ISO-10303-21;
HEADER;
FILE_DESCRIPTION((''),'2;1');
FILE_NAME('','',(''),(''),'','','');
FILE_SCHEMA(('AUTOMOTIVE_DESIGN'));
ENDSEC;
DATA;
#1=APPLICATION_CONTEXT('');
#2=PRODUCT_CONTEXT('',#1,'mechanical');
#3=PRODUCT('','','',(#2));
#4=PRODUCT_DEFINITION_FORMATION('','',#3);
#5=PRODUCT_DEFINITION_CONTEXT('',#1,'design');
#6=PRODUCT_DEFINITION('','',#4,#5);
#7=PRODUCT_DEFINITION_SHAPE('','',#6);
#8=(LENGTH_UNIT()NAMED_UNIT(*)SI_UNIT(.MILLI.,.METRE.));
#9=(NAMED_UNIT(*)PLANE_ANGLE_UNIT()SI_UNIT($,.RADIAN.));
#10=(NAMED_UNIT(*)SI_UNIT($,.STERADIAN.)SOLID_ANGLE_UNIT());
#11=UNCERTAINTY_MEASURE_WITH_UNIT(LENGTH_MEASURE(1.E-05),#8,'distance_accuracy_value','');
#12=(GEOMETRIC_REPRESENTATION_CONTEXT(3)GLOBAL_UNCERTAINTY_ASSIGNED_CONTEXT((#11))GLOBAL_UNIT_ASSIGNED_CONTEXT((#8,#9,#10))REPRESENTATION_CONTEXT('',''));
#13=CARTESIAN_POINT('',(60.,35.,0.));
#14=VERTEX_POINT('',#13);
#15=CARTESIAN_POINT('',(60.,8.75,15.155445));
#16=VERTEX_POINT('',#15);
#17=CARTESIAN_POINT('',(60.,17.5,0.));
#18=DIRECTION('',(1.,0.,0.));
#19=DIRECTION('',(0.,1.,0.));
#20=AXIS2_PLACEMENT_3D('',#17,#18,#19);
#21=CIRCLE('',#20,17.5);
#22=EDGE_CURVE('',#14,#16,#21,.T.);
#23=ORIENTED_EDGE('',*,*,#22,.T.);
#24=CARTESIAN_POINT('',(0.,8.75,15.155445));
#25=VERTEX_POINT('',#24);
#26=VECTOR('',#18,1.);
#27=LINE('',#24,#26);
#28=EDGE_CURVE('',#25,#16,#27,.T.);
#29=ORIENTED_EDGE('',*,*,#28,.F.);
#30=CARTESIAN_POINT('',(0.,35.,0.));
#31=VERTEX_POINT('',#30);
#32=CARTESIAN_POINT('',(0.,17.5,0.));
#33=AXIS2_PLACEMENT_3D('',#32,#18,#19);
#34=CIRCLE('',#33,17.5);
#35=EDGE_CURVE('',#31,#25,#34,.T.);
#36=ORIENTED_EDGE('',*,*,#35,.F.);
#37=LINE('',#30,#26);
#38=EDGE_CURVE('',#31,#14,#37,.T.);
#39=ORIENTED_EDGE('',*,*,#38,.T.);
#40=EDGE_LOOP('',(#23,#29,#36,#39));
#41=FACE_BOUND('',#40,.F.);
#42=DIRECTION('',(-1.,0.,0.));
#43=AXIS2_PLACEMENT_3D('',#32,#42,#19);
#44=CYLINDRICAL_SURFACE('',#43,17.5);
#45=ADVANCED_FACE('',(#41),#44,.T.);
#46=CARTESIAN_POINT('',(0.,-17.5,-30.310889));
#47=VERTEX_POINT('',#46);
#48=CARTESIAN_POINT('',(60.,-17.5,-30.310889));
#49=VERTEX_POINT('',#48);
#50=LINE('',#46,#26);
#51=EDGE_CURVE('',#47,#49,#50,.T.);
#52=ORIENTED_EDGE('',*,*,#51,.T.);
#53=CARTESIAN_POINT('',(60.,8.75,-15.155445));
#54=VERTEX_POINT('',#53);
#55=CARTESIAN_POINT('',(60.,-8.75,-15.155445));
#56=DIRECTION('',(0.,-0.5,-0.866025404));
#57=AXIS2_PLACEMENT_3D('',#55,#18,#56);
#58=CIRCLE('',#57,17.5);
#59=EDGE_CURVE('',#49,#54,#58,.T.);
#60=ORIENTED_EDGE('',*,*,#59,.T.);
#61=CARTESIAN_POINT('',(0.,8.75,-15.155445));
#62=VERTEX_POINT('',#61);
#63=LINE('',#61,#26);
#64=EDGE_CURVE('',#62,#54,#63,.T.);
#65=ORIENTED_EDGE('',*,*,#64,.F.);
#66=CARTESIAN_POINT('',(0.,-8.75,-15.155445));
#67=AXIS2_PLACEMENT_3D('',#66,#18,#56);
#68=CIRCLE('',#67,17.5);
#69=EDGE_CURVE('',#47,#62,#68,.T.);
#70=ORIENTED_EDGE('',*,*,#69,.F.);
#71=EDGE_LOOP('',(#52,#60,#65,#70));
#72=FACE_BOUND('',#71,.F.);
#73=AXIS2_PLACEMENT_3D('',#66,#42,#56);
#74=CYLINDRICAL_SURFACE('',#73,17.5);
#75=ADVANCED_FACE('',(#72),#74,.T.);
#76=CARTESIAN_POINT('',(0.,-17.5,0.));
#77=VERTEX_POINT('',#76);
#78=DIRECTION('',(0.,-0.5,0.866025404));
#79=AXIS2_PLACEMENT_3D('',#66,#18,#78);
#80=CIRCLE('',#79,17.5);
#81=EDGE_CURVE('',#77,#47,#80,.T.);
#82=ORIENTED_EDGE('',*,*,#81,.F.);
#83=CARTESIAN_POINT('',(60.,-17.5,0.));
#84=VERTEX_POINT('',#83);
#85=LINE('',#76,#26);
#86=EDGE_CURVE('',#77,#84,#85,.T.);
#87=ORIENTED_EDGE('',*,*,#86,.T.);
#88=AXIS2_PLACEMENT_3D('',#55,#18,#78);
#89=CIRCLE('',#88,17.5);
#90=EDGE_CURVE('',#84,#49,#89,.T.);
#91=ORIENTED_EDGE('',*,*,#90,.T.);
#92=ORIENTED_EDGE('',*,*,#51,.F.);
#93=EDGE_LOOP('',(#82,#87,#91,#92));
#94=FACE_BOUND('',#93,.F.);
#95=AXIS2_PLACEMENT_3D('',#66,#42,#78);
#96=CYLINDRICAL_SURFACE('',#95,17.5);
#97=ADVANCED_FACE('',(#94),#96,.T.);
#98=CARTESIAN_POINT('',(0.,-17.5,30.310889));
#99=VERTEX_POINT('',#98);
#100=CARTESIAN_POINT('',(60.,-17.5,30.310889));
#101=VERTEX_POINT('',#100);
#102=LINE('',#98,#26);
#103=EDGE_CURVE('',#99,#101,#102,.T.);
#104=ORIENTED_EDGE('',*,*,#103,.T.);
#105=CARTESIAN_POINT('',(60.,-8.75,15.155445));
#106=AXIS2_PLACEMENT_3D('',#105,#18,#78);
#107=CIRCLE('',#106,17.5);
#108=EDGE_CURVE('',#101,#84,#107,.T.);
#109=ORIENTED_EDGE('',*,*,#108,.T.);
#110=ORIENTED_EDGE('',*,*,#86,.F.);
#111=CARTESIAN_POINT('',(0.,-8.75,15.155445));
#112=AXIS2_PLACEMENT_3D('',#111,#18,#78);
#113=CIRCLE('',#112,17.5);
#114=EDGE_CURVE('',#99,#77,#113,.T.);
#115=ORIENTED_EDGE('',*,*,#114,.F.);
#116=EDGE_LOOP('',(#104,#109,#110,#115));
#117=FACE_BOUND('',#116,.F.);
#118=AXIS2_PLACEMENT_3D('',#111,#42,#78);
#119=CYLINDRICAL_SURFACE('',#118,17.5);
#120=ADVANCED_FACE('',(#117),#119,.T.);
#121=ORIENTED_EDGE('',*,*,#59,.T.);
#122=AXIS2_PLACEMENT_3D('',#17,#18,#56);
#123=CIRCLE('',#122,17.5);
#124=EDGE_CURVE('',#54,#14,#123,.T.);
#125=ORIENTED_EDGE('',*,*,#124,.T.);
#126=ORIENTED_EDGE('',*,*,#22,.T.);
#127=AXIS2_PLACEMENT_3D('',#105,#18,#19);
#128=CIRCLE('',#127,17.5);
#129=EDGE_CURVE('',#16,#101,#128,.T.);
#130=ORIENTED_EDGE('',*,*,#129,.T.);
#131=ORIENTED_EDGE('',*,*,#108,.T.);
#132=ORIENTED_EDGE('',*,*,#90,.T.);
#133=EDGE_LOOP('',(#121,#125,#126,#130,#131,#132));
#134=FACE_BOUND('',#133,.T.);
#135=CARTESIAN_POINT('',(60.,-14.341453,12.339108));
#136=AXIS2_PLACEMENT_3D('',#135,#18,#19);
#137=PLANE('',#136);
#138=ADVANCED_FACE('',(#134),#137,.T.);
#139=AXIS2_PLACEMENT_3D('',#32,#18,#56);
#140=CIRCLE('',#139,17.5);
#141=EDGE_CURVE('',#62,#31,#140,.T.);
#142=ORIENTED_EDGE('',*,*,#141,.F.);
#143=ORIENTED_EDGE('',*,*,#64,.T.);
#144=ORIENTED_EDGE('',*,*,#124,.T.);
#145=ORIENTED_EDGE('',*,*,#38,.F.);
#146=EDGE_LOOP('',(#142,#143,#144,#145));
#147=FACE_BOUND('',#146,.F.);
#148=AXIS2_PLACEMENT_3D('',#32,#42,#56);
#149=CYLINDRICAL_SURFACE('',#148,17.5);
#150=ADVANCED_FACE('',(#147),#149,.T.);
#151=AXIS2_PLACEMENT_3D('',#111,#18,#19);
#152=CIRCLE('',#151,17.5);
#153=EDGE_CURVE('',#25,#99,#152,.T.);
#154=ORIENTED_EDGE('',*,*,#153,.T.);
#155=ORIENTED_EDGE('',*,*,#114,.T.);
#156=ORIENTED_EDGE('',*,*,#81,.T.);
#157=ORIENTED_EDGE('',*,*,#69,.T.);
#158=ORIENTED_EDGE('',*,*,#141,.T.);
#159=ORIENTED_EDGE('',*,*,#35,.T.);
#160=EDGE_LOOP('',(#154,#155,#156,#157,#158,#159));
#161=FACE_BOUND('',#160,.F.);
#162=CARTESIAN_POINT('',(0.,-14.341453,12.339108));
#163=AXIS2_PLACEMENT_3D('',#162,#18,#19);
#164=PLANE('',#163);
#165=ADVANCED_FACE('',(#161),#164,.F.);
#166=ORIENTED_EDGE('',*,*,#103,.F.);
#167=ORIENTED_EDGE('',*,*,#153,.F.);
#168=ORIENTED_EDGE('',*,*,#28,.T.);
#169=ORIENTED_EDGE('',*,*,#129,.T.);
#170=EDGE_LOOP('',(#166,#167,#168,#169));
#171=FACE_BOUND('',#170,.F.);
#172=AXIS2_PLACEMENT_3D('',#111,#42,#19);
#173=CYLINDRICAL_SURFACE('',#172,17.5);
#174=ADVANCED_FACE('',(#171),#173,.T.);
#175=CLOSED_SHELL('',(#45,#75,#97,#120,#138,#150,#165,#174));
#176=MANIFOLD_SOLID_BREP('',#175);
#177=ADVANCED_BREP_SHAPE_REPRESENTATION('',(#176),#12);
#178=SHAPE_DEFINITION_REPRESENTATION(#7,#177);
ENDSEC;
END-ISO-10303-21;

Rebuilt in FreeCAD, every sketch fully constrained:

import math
import FreeCAD as App
import Part
import Sketcher
Q = App.Units.Quantity

doc = App.newDocument("Part")
body = doc.addObject("PartDesign::Body", "Body")

# Sketch on YZ plane
sketch1 = body.newObject("Sketcher::SketchObject", "Sketch")
sketch1.AttachmentSupport = (doc.getObject("YZ_Plane"), [""])
sketch1.MapMode = "FlatFace"
sketch1.addGeometry(Part.ArcOfCircle(Part.Circle(App.Vector(18, 0, 0), App.Vector(0, 0, 1), 18), math.radians(0), math.radians(120)), False)
sketch1.addGeometry(Part.ArcOfCircle(Part.Circle(App.Vector(-9, 15, 0), App.Vector(0, 0, 1), 18), math.radians(0), math.radians(120)), False)
sketch1.addGeometry(Part.ArcOfCircle(Part.Circle(App.Vector(-9, 15, 0), App.Vector(0, 0, 1), 18), math.radians(120), math.radians(240)), False)
sketch1.addGeometry(Part.ArcOfCircle(Part.Circle(App.Vector(-9, -15, 0), App.Vector(0, 0, 1), 18), math.radians(120), math.radians(240)), False)
sketch1.addGeometry(Part.ArcOfCircle(Part.Circle(App.Vector(-9, -15, 0), App.Vector(0, 0, 1), 18), math.radians(-120), math.radians(0)), False)
sketch1.addGeometry(Part.ArcOfCircle(Part.Circle(App.Vector(18, 0, 0), App.Vector(0, 0, 1), 18), math.radians(-120), math.radians(0)), False)
sketch1.addConstraint(Sketcher.Constraint("Coincident", 0, 2, 1, 1))
sketch1.addConstraint(Sketcher.Constraint("Tangent", 1, 2, 2, 1))
sketch1.addConstraint(Sketcher.Constraint("Coincident", 2, 2, 3, 1))
sketch1.addConstraint(Sketcher.Constraint("Tangent", 3, 2, 4, 1))
sketch1.addConstraint(Sketcher.Constraint("Coincident", 4, 2, 5, 1))
sketch1.addConstraint(Sketcher.Constraint("Tangent", 5, 2, 0, 1))
sketch1.addConstraint(Sketcher.Constraint("Equal", 0, 1))
sketch1.addConstraint(Sketcher.Constraint("Equal", 1, 2))
sketch1.addConstraint(Sketcher.Constraint("Equal", 2, 3))
sketch1.addConstraint(Sketcher.Constraint("Equal", 3, 4))
sketch1.addConstraint(Sketcher.Constraint("Equal", 4, 5))
sketch1.addConstraint(Sketcher.Constraint("Symmetric", 1, 3, 3, 3, -1))
sketch1.addConstraint(Sketcher.Constraint("PointOnObject", 0, 3, -1))
sketch1.addConstraint(Sketcher.Constraint("PointOnObject", 5, 2, -1))
sketch1.addConstraint(Sketcher.Constraint("Horizontal", 2, 3, 0, 2))
sketch1.addConstraint(Sketcher.Constraint("Vertical", 1, 2, 2, 2))
sketch1.addConstraint(Sketcher.Constraint("Vertical", 2, 2, 3, 2))
sketch1.addConstraint(Sketcher.Constraint("Radius", 0, Q("17.5 mm")))
sketch1.addConstraint(Sketcher.Constraint("DistanceX", -1, 1, 5, 2, Q("35 mm")))
sketch1.addConstraint(Sketcher.Constraint("DistanceX", 1, 2, -1, 1, Q("17.5 mm")))
pad1 = body.newObject("PartDesign::Pad", "Pad")
pad1.Profile = sketch1
pad1.Length = 60

doc.recompute()
